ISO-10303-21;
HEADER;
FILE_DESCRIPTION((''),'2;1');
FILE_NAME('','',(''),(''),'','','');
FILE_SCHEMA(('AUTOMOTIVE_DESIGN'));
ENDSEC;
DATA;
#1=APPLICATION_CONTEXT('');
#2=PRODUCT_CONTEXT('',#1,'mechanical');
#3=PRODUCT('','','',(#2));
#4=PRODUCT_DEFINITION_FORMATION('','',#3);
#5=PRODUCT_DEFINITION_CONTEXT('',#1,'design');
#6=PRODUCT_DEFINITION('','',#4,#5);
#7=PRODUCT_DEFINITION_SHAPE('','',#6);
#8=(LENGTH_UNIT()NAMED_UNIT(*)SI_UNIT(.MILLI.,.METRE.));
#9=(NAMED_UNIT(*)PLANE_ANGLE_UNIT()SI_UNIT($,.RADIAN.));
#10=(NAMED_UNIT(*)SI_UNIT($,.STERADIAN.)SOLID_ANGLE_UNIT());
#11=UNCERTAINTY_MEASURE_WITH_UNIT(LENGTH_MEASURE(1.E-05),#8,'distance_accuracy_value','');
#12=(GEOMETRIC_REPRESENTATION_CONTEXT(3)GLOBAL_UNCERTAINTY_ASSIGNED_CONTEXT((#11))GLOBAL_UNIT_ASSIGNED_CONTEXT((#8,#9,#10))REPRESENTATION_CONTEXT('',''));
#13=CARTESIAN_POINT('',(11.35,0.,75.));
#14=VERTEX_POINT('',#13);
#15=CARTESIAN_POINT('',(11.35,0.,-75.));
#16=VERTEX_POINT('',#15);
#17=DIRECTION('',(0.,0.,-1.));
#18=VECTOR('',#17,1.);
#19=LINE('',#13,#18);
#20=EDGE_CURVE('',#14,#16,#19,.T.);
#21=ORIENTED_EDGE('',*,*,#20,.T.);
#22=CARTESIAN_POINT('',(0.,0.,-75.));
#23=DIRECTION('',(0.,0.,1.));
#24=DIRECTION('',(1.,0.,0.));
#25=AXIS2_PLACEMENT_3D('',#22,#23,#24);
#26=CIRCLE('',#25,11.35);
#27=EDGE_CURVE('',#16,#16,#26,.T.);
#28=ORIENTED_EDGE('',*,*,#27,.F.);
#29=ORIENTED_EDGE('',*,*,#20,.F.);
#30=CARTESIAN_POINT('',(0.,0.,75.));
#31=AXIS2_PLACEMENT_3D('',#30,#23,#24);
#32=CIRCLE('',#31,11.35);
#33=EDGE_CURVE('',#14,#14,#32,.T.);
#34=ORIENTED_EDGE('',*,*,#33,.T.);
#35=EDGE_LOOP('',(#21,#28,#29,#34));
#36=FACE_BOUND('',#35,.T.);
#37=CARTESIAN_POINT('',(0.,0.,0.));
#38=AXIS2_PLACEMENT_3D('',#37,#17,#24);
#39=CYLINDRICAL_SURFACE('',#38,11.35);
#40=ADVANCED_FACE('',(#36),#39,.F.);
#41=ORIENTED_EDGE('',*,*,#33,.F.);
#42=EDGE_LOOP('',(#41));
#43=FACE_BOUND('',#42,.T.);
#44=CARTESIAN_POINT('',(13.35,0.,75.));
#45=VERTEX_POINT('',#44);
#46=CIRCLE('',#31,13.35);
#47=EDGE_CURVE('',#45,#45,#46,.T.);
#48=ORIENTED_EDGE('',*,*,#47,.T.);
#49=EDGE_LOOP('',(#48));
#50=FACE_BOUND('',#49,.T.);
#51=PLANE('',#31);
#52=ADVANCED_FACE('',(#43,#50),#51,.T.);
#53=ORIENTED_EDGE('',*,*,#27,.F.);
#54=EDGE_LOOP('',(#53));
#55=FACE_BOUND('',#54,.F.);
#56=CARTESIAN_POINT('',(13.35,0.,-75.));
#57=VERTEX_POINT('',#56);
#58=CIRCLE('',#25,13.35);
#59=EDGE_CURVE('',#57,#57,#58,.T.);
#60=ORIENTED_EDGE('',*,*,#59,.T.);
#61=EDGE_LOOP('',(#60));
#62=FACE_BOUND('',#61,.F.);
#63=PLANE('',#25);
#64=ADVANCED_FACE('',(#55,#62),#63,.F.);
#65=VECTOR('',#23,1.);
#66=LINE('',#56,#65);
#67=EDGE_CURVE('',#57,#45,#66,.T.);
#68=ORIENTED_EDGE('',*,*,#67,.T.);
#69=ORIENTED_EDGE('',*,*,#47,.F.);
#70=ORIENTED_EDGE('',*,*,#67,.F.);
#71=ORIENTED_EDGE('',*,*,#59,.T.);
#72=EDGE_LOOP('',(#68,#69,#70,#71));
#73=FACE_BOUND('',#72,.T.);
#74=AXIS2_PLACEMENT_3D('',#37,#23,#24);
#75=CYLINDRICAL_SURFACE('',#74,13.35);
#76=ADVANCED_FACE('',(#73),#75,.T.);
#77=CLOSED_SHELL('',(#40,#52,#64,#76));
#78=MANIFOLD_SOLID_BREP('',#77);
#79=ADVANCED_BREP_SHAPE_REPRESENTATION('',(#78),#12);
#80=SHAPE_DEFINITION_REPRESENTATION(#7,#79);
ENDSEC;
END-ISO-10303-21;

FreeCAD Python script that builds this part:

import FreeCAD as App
import Part
import Sketcher
from FreeCAD import Vector

doc = App.newDocument("Part")
body = doc.addObject("PartDesign::Body", "Body")

sketch1 = doc.addObject("Sketcher::SketchObject", "Sketch")
body.addObject(sketch1)
sketch1.AttachmentSupport = (doc.XY_Plane, [""])
sketch1.MapMode = "FlatFace"
sketch1.addGeometry([
    Part.Circle(Vector(0, 0, 0), Vector(0, 0, 1), 13.35),
    Part.Circle(Vector(0, 0, 0), Vector(0, 0, 1), 11.35),
], False)
sketch1.addConstraint([
    Sketcher.Constraint("Coincident", 0, 3, -1, 1),
    Sketcher.Constraint("Coincident", 1, 3, -1, 1),
    Sketcher.Constraint("Diameter", 0, 26.7),
    Sketcher.Constraint("Diameter", 1, 22.7),
])
pad1 = doc.addObject("PartDesign::Pad", "Pad")
body.addObject(pad1)
pad1.Profile = sketch1
pad1.Length = 150
pad1.Midplane = True

doc.recompute()
